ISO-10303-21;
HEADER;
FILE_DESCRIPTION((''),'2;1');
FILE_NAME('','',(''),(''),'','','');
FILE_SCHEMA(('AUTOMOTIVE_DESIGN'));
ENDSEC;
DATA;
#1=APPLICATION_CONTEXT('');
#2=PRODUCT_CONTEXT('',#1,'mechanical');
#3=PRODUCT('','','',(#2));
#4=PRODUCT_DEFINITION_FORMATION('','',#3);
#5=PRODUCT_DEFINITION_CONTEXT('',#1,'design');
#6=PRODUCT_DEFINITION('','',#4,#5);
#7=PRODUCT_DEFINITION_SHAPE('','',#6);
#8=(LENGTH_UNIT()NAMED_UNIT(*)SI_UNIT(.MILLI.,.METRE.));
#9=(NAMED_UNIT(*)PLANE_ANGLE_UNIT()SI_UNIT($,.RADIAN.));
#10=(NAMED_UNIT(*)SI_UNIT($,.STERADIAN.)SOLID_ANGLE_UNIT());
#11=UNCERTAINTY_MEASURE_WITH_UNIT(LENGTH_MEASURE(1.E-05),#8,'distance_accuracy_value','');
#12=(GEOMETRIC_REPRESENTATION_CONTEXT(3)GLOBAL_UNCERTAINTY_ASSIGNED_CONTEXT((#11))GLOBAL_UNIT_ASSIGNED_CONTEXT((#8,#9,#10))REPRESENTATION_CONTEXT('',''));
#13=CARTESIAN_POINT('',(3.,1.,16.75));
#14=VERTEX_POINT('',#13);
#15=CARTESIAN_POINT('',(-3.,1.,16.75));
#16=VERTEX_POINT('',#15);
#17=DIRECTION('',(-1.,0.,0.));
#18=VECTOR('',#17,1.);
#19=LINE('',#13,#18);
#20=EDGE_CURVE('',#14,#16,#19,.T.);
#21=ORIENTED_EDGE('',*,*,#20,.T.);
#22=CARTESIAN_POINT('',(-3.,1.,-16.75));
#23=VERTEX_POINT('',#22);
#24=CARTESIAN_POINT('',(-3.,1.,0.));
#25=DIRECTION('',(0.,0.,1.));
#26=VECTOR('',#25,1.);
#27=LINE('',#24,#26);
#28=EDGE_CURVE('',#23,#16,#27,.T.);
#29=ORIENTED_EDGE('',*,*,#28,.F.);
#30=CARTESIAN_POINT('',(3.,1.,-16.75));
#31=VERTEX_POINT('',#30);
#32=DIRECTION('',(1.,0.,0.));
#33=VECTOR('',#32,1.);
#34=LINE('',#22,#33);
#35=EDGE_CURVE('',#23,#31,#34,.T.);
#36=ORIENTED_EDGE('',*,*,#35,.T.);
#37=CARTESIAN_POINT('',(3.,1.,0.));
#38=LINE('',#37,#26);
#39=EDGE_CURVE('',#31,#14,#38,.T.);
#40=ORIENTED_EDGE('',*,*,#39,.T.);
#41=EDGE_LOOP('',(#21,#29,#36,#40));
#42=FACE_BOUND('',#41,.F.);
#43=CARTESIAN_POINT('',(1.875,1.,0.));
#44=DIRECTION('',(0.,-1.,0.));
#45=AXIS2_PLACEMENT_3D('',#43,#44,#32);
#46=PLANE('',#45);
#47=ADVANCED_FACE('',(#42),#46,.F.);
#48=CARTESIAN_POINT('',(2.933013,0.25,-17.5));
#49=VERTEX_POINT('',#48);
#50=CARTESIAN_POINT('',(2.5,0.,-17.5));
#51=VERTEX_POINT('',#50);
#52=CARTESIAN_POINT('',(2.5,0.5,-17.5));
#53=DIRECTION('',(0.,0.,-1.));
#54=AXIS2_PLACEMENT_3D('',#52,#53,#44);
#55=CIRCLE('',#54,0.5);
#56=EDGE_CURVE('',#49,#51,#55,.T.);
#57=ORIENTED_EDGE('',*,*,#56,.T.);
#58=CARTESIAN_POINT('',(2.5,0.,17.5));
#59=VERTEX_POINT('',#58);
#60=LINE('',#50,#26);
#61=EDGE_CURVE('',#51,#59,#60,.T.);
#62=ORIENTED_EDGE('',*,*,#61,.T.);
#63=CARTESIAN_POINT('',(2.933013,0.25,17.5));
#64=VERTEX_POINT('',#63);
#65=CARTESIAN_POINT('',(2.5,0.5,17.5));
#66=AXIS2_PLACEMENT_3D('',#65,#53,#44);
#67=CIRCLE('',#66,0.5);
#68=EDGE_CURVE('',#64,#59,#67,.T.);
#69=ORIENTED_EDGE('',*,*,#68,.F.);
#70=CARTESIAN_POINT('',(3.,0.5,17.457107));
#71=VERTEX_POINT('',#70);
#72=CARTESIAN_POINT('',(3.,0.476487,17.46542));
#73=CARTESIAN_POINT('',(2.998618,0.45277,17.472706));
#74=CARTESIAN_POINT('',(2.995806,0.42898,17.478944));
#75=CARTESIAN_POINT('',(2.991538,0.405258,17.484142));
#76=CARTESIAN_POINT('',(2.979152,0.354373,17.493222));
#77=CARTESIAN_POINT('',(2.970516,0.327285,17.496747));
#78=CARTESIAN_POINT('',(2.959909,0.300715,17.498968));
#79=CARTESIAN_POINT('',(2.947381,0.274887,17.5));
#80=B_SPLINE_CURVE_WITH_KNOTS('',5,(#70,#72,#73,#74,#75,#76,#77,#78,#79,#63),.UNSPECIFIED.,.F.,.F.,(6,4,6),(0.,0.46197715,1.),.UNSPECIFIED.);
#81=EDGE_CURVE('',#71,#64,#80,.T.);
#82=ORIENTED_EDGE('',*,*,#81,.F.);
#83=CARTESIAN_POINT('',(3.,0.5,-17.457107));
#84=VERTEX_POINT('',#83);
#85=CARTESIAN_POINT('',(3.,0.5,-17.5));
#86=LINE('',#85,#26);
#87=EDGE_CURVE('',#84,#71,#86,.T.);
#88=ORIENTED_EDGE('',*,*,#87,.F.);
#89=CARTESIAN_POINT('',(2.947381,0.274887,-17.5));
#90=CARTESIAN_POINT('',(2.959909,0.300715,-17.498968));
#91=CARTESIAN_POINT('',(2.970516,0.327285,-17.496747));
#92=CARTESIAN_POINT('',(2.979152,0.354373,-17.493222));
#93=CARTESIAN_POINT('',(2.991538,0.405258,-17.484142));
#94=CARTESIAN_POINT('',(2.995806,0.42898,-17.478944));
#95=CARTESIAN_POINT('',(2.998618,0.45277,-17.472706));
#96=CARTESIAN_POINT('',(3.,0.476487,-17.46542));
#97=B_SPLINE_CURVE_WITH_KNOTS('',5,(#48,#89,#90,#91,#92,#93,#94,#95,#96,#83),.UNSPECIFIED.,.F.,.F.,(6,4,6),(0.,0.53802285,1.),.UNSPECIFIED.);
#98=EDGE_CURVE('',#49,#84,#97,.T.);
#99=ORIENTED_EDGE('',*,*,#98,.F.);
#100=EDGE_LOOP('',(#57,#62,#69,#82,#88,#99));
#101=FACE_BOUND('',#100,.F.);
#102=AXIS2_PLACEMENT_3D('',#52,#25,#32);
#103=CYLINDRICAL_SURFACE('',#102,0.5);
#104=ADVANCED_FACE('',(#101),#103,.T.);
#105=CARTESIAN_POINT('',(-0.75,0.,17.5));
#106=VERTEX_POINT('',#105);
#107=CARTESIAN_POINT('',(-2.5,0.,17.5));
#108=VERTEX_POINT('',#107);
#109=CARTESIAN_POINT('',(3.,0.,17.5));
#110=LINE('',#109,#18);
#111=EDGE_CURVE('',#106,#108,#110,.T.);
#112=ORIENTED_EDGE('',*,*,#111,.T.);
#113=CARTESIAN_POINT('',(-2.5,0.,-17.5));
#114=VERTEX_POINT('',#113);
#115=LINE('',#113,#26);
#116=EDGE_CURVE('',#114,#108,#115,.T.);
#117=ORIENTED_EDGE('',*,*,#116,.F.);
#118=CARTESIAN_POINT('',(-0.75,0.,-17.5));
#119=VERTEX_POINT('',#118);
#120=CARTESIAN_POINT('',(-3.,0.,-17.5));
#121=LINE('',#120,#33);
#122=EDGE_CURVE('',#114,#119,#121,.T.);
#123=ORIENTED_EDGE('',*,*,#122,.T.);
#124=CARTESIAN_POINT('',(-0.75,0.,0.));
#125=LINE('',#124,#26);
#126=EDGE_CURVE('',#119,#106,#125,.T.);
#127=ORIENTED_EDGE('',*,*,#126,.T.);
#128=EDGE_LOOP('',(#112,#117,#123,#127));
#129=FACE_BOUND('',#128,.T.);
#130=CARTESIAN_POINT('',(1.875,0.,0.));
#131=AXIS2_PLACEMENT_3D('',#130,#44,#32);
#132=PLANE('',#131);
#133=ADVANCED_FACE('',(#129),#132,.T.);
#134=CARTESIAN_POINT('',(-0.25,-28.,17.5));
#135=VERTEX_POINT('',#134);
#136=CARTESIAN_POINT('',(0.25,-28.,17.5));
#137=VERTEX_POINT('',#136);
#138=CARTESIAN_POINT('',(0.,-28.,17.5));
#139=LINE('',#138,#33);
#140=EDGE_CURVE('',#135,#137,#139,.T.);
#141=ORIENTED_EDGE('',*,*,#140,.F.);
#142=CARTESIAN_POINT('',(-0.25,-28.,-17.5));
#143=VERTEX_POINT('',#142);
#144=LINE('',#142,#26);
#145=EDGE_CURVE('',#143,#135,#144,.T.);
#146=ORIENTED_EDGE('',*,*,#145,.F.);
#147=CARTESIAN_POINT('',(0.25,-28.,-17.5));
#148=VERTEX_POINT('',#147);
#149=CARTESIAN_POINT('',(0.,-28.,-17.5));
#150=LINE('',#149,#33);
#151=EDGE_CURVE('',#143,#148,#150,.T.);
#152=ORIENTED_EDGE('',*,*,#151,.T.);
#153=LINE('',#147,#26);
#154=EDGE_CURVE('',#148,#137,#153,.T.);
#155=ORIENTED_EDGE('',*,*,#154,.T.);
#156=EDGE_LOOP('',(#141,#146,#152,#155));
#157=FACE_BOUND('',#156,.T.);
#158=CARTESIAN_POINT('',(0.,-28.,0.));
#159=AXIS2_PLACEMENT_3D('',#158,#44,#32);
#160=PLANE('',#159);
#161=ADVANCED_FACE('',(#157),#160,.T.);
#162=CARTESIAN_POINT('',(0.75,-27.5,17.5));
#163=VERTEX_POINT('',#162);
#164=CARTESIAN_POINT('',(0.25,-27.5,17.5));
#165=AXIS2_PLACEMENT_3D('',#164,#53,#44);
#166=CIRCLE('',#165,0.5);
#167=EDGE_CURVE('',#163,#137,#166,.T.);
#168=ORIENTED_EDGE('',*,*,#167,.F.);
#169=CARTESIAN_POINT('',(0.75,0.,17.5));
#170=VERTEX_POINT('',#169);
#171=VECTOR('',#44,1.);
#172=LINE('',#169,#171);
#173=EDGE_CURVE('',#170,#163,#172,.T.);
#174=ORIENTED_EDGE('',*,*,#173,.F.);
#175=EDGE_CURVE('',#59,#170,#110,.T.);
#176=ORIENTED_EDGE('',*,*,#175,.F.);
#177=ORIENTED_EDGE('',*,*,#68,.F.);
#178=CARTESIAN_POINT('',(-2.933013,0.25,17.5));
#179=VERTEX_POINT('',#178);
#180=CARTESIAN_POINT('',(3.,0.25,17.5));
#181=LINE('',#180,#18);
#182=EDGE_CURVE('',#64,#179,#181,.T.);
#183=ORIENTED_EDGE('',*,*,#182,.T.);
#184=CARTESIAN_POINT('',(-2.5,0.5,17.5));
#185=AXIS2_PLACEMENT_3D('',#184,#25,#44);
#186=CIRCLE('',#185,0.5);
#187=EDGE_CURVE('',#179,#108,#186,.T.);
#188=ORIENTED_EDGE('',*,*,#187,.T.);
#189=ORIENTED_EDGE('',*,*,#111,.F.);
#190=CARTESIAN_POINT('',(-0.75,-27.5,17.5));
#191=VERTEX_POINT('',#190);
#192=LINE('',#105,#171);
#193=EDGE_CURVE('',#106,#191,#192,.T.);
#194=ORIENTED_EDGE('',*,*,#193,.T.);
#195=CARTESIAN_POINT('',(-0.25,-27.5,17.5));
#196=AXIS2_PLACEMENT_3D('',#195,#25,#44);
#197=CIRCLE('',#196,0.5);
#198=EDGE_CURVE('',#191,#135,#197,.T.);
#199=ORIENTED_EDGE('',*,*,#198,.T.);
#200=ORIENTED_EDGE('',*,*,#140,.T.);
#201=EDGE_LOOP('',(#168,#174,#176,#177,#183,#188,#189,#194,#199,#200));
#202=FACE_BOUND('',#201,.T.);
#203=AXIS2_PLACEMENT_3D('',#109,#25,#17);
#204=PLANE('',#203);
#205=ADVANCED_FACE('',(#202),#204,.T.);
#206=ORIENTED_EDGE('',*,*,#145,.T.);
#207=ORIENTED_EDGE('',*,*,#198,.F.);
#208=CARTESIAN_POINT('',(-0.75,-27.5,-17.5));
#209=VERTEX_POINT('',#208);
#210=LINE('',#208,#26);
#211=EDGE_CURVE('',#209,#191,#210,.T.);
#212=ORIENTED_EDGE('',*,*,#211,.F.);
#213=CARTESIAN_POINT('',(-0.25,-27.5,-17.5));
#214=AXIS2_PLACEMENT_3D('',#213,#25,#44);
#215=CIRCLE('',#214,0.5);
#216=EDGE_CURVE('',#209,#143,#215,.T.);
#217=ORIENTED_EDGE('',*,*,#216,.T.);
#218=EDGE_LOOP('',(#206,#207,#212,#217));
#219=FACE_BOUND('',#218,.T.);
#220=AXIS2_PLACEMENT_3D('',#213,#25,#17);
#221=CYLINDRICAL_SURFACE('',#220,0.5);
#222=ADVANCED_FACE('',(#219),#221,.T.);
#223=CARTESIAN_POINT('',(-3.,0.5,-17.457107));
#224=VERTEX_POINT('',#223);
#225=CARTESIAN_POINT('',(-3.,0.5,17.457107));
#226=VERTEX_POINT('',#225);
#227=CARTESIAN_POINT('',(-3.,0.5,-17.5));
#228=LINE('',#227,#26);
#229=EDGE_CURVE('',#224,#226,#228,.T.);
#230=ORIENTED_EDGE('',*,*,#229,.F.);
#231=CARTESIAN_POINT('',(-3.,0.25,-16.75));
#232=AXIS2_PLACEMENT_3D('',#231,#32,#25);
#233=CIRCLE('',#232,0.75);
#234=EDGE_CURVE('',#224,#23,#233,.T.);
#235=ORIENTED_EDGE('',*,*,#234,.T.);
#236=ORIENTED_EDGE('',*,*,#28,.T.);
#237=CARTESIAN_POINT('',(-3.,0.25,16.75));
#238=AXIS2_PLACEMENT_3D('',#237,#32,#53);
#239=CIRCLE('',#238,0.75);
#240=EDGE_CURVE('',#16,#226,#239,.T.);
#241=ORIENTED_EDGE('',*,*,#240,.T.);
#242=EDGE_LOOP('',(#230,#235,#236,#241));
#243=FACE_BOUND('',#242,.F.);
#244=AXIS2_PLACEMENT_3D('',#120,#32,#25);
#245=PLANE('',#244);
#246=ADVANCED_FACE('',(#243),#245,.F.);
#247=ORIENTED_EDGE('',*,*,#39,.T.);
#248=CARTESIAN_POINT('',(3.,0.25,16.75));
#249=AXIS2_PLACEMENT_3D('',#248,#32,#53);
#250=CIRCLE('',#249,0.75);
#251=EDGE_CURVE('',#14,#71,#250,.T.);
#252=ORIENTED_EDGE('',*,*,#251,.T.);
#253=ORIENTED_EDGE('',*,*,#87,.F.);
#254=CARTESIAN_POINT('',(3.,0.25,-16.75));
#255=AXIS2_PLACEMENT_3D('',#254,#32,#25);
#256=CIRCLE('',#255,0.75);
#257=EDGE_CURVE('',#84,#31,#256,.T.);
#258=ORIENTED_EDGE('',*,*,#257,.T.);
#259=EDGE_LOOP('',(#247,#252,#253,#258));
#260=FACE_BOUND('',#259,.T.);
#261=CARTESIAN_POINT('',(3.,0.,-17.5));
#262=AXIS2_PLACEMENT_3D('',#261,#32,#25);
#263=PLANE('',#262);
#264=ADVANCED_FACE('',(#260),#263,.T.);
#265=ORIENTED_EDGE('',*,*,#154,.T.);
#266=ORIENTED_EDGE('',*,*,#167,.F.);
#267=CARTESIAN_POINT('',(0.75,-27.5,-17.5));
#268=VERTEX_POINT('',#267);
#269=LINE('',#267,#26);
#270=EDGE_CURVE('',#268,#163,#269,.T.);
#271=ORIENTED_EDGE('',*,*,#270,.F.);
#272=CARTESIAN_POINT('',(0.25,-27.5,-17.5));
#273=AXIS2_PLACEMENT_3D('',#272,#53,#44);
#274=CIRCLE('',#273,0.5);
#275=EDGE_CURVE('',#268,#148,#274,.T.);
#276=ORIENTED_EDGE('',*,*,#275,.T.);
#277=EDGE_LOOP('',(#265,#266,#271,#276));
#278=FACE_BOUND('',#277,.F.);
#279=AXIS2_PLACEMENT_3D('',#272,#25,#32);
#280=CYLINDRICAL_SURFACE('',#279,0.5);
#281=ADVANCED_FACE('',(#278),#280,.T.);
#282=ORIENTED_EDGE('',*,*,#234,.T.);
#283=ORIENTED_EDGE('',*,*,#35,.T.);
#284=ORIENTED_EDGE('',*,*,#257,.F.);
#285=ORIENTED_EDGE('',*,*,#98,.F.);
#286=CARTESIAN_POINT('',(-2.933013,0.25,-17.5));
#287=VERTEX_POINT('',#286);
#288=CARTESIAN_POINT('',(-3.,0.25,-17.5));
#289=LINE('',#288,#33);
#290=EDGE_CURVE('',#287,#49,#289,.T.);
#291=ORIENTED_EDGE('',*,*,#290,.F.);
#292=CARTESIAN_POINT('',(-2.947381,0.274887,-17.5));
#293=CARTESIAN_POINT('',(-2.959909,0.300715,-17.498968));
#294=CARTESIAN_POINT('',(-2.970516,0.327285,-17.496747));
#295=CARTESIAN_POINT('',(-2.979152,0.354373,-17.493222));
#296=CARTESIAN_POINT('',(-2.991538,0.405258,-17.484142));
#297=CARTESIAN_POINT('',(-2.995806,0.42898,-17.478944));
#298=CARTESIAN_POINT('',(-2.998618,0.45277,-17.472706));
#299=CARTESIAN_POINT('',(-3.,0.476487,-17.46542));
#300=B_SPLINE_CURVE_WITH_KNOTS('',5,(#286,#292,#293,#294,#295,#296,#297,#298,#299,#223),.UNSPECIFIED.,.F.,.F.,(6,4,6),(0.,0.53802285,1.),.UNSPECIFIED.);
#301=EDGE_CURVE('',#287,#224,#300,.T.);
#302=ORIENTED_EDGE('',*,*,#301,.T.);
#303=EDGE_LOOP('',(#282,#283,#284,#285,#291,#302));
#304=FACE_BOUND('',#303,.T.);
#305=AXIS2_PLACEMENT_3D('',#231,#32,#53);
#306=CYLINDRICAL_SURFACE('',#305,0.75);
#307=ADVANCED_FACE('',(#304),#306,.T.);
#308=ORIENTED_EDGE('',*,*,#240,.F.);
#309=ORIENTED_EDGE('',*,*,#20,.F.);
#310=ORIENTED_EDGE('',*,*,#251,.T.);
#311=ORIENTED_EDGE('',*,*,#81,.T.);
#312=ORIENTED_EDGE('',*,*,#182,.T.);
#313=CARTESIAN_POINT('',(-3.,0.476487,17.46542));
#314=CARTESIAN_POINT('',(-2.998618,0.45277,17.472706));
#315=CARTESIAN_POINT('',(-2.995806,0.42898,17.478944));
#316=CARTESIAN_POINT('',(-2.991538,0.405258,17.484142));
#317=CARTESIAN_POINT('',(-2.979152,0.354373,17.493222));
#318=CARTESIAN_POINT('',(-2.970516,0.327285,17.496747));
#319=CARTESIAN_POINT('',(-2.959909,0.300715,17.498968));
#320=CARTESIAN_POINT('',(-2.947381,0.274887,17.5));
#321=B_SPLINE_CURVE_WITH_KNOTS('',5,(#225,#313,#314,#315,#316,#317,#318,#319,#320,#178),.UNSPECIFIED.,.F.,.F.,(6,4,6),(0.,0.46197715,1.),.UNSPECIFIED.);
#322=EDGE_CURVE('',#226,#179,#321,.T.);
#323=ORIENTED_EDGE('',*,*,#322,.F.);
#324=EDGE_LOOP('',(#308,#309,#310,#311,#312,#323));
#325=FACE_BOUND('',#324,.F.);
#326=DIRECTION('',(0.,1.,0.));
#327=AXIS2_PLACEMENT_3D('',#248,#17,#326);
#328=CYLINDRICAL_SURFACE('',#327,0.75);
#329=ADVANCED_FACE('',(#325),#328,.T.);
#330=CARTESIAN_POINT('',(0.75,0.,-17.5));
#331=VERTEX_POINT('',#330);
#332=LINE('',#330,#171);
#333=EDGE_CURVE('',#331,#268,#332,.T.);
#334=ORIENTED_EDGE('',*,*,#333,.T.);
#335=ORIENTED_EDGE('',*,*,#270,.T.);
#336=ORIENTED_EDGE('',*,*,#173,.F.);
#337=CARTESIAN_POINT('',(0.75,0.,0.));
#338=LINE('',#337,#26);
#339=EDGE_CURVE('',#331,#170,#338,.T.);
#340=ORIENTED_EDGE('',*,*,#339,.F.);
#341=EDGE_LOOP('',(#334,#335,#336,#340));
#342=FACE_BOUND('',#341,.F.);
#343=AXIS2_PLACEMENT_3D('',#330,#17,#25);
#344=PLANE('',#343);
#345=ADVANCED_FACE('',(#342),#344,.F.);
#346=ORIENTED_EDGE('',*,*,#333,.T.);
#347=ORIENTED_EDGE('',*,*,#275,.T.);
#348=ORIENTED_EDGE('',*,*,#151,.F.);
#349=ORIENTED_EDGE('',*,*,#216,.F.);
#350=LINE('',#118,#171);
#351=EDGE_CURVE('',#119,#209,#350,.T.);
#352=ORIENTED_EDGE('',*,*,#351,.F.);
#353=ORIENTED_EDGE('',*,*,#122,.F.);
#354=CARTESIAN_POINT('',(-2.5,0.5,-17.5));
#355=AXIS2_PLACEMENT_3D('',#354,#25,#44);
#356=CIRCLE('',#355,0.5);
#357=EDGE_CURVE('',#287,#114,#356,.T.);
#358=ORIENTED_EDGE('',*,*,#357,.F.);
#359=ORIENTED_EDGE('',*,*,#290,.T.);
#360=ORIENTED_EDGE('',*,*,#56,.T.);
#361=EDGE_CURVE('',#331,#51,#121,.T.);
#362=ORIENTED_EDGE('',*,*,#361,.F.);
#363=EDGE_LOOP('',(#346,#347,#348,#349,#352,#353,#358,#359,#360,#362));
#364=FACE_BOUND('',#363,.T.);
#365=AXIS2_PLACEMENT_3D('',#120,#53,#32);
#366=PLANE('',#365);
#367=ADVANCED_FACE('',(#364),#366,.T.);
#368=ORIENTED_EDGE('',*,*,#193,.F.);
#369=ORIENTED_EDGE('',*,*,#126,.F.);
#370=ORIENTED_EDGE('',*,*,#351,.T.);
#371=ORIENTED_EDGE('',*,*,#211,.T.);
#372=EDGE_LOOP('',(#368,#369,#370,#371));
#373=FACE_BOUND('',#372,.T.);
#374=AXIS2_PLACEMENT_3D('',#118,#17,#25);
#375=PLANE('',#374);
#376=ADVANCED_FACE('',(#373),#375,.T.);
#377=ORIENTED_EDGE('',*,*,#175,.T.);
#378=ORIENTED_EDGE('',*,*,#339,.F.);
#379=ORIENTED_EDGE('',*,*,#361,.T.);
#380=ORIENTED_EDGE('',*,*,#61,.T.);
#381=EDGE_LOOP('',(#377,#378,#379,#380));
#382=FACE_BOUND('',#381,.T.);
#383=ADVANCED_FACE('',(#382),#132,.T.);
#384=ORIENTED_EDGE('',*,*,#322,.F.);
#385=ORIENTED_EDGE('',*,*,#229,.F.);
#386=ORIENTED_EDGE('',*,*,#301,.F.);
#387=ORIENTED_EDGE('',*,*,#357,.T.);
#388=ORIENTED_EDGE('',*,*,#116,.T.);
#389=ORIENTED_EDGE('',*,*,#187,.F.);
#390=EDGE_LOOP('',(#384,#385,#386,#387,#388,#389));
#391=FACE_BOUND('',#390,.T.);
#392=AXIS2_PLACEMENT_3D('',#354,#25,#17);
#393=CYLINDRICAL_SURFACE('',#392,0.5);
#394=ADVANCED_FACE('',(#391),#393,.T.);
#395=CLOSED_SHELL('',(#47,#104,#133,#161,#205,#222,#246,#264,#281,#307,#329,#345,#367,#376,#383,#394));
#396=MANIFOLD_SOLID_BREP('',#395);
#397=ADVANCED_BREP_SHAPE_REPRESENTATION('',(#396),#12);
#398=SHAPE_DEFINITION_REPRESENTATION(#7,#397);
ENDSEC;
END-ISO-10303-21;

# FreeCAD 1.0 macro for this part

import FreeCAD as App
import Part
import Sketcher

V = App.Vector
Q = App.Units.Quantity


def edges_at(feature, points):
    """Names of the edges that pass closest to the given points."""
    edges = feature.Shape.Edges
    near = lambda p: min(range(len(edges)), key=lambda i: edges[i].distToShape(Part.Vertex(*p))[0])
    return sorted({f"Edge{near(p) + 1}" for p in points})

doc = App.newDocument("Part")
body = doc.addObject("PartDesign::Body", "Body")

# Sketch on XZ plane
sketch1 = body.newObject("Sketcher::SketchObject", "Sketch")
sketch1.AttachmentSupport = (doc.getObject("XZ_Plane"), [""])
sketch1.MapMode = "FlatFace"
sketch1.addGeometry([
    Part.LineSegment(V(3, -18, 0), V(3, 18, 0)),
    Part.LineSegment(V(3, 18, 0), V(-3, 18, 0)),
    Part.LineSegment(V(-3, 18, 0), V(-3, -18, 0)),
    Part.LineSegment(V(-3, -18, 0), V(3, -18, 0)),
], False)
sketch1.addConstraint([
    Sketcher.Constraint("Coincident", 0, 2, 1, 1),
    Sketcher.Constraint("Coincident", 1, 2, 2, 1),
    Sketcher.Constraint("Coincident", 2, 2, 3, 1),
    Sketcher.Constraint("Coincident", 3, 2, 0, 1),
    Sketcher.Constraint("Vertical", 0),
    Sketcher.Constraint("Horizontal", 1),
    Sketcher.Constraint("Vertical", 2),
    Sketcher.Constraint("Horizontal", 3),
    Sketcher.Constraint("Symmetric", 0, 2, 2, 2, -1, 1),
    Sketcher.Constraint("DistanceX", 1, 2, 1, 1, Q("6 mm")),
    Sketcher.Constraint("DistanceY", 0, 1, 0, 2, Q("35 mm")),
])
pad1 = body.newObject("PartDesign::Pad", "Pad")
pad1.Profile = sketch1
pad1.Length = 1
pad1.Reversed = True

# Sketch on XZ plane
sketch2 = body.newObject("Sketcher::SketchObject", "Sketch001")
sketch2.AttachmentSupport = (doc.getObject("XZ_Plane"), [""])
sketch2.MapMode = "FlatFace"
sketch2.addGeometry([
    Part.LineSegment(V(-0.8, 17.5, 0), V(-0.8, -17.5, 0)),
    Part.LineSegment(V(-0.8, -17.5, 0), V(0.8, -17.5, 0)),
    Part.LineSegment(V(0.8, -17.5, 0), V(0.8, 17.5, 0)),
    Part.LineSegment(V(0.8, 17.5, 0), V(-0.8, 17.5, 0)),
], False)
sketch2.addConstraint([
    Sketcher.Constraint("Coincident", 0, 2, 1, 1),
    Sketcher.Constraint("Coincident", 1, 2, 2, 1),
    Sketcher.Constraint("Coincident", 2, 2, 3, 1),
    Sketcher.Constraint("Coincident", 3, 2, 0, 1),
    Sketcher.Constraint("Vertical", 0),
    Sketcher.Constraint("Horizontal", 1),
    Sketcher.Constraint("Vertical", 2),
    Sketcher.Constraint("Horizontal", 3),
    Sketcher.Constraint("Symmetric", 0, 2, 2, 2, -1, 1),
    Sketcher.Constraint("DistanceY", 0, 2, 0, 1, Q("35 mm")),
    Sketcher.Constraint("DistanceX", 1, 1, 1, 2, Q("1.5 mm")),
])
pad2 = body.newObject("PartDesign::Pad", "Pad001")
pad2.Profile = sketch2
pad2.Length = 28
doc.recompute()

fillet = body.newObject("PartDesign::Fillet", "Fillet")
fillet.Base = (pad2, edges_at(pad2, [
    (-3, 0, 0),
    (3, 0, 0),
    (-0.75, -28, 0),
    (0.75, -28, 0),
]))
fillet.Radius = 0.5
doc.recompute()

fillet2 = body.newObject("PartDesign::Fillet", "Fillet001")
fillet2.Base = (fillet, edges_at(fillet, [(0, 1, 17.5), (0, 1, -17.5)]))
fillet2.Radius = 0.75

doc.recompute()
